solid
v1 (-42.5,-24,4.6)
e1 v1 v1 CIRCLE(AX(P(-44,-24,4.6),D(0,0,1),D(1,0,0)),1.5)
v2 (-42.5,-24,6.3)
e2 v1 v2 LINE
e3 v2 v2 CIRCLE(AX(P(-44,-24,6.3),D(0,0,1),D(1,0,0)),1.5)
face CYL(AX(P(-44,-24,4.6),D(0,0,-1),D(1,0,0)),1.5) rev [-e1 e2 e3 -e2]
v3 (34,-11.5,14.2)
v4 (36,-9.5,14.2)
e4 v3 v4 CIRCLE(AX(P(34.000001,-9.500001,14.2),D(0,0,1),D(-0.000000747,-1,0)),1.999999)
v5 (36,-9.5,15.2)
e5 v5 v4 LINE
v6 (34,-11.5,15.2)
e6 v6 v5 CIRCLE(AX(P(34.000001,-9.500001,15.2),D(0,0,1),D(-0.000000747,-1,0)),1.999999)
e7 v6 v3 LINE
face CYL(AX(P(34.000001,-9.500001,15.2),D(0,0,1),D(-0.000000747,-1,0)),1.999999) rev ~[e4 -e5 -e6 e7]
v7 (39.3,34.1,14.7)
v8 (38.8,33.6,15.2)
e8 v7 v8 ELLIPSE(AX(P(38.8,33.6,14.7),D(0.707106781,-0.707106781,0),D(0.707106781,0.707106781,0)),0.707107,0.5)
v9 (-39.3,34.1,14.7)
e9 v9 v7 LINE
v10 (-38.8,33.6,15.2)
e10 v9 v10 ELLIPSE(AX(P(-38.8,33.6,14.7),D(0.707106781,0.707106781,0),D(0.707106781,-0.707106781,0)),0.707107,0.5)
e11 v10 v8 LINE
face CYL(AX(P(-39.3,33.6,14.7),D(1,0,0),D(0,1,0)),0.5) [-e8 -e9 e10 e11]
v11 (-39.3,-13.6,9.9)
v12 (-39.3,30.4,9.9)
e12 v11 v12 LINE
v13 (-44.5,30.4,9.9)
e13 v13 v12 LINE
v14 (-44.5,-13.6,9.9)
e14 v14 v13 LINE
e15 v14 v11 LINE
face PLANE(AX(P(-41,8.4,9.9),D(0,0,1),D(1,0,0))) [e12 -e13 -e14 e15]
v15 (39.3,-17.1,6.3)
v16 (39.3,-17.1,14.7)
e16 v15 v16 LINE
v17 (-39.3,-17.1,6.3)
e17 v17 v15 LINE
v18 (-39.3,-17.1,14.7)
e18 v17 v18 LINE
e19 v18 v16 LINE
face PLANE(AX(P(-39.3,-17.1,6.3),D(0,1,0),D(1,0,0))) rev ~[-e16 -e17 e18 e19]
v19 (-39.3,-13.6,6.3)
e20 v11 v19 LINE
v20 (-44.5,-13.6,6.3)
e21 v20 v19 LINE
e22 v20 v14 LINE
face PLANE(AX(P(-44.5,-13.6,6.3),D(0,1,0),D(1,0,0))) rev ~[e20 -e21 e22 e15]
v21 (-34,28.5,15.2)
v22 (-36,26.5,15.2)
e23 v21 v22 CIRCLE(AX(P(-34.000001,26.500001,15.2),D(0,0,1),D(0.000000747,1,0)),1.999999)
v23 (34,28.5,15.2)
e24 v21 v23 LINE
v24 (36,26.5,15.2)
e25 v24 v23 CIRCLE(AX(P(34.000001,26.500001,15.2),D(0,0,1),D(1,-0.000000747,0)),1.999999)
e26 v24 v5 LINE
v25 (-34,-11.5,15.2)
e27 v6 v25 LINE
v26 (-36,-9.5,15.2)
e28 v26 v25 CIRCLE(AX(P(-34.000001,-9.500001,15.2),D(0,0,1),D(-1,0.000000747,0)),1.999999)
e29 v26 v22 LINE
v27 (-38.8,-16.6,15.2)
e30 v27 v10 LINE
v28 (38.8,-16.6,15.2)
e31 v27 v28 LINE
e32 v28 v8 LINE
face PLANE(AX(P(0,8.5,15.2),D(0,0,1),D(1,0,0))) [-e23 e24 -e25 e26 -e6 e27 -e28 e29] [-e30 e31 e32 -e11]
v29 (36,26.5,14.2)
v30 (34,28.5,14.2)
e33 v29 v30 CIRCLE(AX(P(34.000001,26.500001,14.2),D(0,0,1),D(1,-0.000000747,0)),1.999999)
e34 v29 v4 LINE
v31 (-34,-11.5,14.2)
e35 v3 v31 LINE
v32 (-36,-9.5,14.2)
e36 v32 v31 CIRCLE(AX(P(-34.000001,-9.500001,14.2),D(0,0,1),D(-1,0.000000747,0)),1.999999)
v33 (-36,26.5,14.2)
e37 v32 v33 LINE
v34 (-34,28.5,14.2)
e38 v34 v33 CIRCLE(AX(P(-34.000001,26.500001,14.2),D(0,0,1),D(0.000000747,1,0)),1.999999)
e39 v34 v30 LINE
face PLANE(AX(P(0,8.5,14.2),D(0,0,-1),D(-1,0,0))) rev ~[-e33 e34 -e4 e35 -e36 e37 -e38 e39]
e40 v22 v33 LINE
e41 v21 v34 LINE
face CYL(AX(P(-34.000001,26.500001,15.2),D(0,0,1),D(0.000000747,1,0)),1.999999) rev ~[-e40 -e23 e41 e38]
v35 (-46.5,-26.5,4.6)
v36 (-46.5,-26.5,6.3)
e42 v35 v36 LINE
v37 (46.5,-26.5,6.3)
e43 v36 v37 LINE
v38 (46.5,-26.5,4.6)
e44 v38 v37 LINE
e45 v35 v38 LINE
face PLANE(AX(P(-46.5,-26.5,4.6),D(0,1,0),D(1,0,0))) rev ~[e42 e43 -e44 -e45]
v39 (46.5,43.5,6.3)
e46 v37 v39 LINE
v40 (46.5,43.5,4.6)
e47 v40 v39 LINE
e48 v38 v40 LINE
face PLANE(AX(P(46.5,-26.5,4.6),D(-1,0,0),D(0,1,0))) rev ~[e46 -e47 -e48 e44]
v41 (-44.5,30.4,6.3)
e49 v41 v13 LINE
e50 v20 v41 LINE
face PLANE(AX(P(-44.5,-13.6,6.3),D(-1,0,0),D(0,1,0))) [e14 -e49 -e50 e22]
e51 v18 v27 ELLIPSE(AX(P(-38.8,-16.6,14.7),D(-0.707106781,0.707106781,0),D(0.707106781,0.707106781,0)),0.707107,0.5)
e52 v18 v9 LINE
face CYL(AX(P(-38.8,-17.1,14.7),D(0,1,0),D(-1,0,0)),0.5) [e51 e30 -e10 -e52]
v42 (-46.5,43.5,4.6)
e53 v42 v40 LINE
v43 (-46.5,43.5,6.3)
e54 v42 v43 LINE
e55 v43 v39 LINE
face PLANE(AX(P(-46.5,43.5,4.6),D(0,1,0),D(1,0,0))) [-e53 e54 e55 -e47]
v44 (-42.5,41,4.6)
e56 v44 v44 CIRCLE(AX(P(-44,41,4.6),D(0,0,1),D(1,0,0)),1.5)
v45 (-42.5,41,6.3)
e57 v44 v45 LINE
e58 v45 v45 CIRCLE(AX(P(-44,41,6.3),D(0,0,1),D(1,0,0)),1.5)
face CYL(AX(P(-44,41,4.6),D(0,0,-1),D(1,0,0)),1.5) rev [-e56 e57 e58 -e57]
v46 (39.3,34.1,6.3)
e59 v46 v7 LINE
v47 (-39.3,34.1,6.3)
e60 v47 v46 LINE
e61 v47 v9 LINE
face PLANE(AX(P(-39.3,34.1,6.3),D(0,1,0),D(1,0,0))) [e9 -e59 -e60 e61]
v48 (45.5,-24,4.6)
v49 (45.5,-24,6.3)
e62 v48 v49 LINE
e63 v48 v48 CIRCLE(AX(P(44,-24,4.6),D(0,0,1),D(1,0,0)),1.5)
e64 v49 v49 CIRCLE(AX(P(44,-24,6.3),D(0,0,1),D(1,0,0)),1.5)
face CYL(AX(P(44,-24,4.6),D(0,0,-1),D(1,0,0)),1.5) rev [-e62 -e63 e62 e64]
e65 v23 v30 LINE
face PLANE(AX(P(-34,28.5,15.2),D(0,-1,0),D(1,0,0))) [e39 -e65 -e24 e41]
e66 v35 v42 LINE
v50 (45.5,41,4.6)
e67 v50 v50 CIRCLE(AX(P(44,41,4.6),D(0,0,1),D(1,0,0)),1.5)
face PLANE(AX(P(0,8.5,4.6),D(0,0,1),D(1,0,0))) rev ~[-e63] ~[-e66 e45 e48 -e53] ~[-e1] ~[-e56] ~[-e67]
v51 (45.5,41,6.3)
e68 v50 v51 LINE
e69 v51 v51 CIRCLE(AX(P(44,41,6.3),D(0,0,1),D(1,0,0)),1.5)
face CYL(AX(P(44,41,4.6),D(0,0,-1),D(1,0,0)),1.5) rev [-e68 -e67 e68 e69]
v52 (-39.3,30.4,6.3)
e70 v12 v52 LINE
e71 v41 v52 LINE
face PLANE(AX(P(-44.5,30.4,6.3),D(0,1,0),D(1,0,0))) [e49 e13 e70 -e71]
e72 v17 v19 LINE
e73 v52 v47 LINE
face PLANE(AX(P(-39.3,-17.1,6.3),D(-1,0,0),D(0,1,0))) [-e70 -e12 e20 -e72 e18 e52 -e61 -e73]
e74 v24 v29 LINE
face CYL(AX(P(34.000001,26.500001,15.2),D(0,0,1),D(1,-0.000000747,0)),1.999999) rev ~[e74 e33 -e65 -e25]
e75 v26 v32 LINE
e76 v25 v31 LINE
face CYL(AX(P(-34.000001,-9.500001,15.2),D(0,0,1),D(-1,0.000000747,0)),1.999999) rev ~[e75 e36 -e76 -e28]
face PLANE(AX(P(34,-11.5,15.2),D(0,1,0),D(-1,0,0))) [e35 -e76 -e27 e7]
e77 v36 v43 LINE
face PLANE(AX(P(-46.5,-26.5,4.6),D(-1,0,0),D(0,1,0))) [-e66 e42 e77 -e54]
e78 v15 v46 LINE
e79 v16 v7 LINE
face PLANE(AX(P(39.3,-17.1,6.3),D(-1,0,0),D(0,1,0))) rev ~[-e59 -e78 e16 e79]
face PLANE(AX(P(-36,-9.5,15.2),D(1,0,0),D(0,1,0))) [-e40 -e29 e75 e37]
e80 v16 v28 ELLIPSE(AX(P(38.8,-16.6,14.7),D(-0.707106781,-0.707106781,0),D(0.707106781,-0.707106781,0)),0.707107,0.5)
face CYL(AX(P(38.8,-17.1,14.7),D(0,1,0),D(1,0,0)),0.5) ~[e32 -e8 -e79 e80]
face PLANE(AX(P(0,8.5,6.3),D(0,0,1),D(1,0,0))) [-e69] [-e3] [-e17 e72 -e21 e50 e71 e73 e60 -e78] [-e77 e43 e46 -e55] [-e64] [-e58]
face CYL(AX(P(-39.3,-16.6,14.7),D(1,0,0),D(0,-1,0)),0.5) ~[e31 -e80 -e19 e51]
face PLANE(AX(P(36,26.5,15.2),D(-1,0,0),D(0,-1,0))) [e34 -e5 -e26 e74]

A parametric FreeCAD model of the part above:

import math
import FreeCAD as App
import Part
import Sketcher

V = App.Vector
Q = App.Units.Quantity


def edges_at(feature, points):
    """Names of the edges that pass closest to the given points."""
    edges = feature.Shape.Edges
    near = lambda p: min(range(len(edges)), key=lambda i: edges[i].distToShape(Part.Vertex(*p))[0])
    return sorted({f"Edge{near(p) + 1}" for p in points})

doc = App.newDocument("Part")
body = doc.addObject("PartDesign::Body", "Body")

sketch1 = body.newObject("Sketcher::SketchObject", "Sketch")
sketch1.AttachmentSupport = (doc.getObject("XY_Plane"), [""])
sketch1.MapMode = "FlatFace"
sketch1.AttachmentOffset = App.Placement(V(0, 0, 4.6), App.Rotation())
sketch1.addGeometry(Part.LineSegment(V(-46.5, 43.5, 0), V(-46.5, -26.5, 0)), False)
sketch1.addGeometry(Part.LineSegment(V(-46.5, -26.5, 0), V(46.5, -26.5, 0)), False)
sketch1.addGeometry(Part.LineSegment(V(46.5, -26.5, 0), V(46.5, 43.5, 0)), False)
sketch1.addGeometry(Part.LineSegment(V(46.5, 43.5, 0), V(-46.5, 43.5, 0)), False)
sketch1.addGeometry(Part.Circle(V(-44, -24, 0), V(0, 0, 1), 1.5), False)
sketch1.addGeometry(Part.Circle(V(44, -24, 0), V(0, 0, 1), 1.5), False)
sketch1.addGeometry(Part.Circle(V(-44, 41, 0), V(0, 0, 1), 1.5), False)
sketch1.addGeometry(Part.Circle(V(44, 41, 0), V(0, 0, 1), 1.5), False)
sketch1.addConstraint(Sketcher.Constraint("Coincident", 0, 2, 1, 1))
sketch1.addConstraint(Sketcher.Constraint("Coincident", 1, 2, 2, 1))
sketch1.addConstraint(Sketcher.Constraint("Coincident", 2, 2, 3, 1))
sketch1.addConstraint(Sketcher.Constraint("Coincident", 3, 2, 0, 1))
sketch1.addConstraint(Sketcher.Constraint("Vertical", 0))
sketch1.addConstraint(Sketcher.Constraint("Horizontal", 1))
sketch1.addConstraint(Sketcher.Constraint("Vertical", 2))
sketch1.addConstraint(Sketcher.Constraint("Horizontal", 3))
sketch1.addConstraint(Sketcher.Constraint("Equal", 4, 5))
sketch1.addConstraint(Sketcher.Constraint("Equal", 5, 6))
sketch1.addConstraint(Sketcher.Constraint("Equal", 6, 7))
sketch1.addConstraint(Sketcher.Constraint("Symmetric", 4, 3, 5, 3, -2))
sketch1.addConstraint(Sketcher.Constraint("Symmetric", 6, 3, 7, 3, -2))
sketch1.addConstraint(Sketcher.Constraint("Vertical", 4, 3, 6, 3))
sketch1.addConstraint(Sketcher.Constraint("Diameter", 4, Q("3 mm")))
sketch1.addConstraint(Sketcher.Constraint("DistanceX", 1, 1, 1, 2, Q("93 mm")))
sketch1.addConstraint(Sketcher.Constraint("DistanceY", 0, 2, 0, 1, Q("70 mm")))
sketch1.addConstraint(Sketcher.Constraint("DistanceX", 4, 3, -1, 1, Q("44 mm")))
sketch1.addConstraint(Sketcher.Constraint("DistanceY", 4, 3, -1, 1, Q("24 mm")))
sketch1.addConstraint(Sketcher.Constraint("DistanceY", -1, 1, 6, 3, Q("41 mm")))
sketch1.addConstraint(Sketcher.Constraint("DistanceX", 0, 2, -1, 1, Q("46.5 mm")))
sketch1.addConstraint(Sketcher.Constraint("DistanceY", 0, 2, -1, 1, Q("26.5 mm")))
pad1 = body.newObject("PartDesign::Pad", "Pad")
pad1.Profile = sketch1
pad1.Length = 1.7

sketch2 = body.newObject("Sketcher::SketchObject", "Sketch001")
sketch2.AttachmentSupport = (doc.getObject("XY_Plane"), [""])
sketch2.MapMode = "FlatFace"
sketch2.AttachmentOffset = App.Placement(V(0, 0, 6.3), App.Rotation())
sketch2.addGeometry(Part.LineSegment(V(-39, 34, 0), V(-39, -17, 0)), False)
sketch2.addGeometry(Part.LineSegment(V(-39, -17, 0), V(39, -17, 0)), False)
sketch2.addGeometry(Part.LineSegment(V(39, -17, 0), V(39, 34, 0)), False)
sketch2.addGeometry(Part.LineSegment(V(39, 34, 0), V(-39, 34, 0)), False)
sketch2.addConstraint(Sketcher.Constraint("Coincident", 0, 2, 1, 1))
sketch2.addConstraint(Sketcher.Constraint("Coincident", 1, 2, 2, 1))
sketch2.addConstraint(Sketcher.Constraint("Coincident", 2, 2, 3, 1))
sketch2.addConstraint(Sketcher.Constraint("Coincident", 3, 2, 0, 1))
sketch2.addConstraint(Sketcher.Constraint("Vertical", 0))
sketch2.addConstraint(Sketcher.Constraint("Horizontal", 1))
sketch2.addConstraint(Sketcher.Constraint("Vertical", 2))
sketch2.addConstraint(Sketcher.Constraint("Horizontal", 3))
sketch2.addConstraint(Sketcher.Constraint("DistanceX", 1, 1, 1, 2, Q("78.6 mm")))
sketch2.addConstraint(Sketcher.Constraint("DistanceY", 0, 2, 0, 1, Q("51.2 mm")))
sketch2.addConstraint(Sketcher.Constraint("DistanceX", 0, 2, -1, 1, Q("39.3 mm")))
sketch2.addConstraint(Sketcher.Constraint("DistanceY", 0, 2, -1, 1, Q("17.1 mm")))
pad2 = body.newObject("PartDesign::Pad", "Pad001")
pad2.Profile = sketch2
pad2.Length = 8.9

sketch3 = body.newObject("Sketcher::SketchObject", "Sketch002")
sketch3.AttachmentSupport = (doc.getObject("XY_Plane"), [""])
sketch3.MapMode = "FlatFace"
sketch3.AttachmentOffset = App.Placement(V(0, 0, 6.3), App.Rotation())
sketch3.addGeometry(Part.LineSegment(V(-44, 30, 0), V(-44, -14, 0)), False)
sketch3.addGeometry(Part.LineSegment(V(-44, -14, 0), V(-38, -14, 0)), False)
sketch3.addGeometry(Part.LineSegment(V(-38, -14, 0), V(-38, 30, 0)), False)
sketch3.addGeometry(Part.LineSegment(V(-38, 30, 0), V(-44, 30, 0)), False)
sketch3.addConstraint(Sketcher.Constraint("Coincident", 0, 2, 1, 1))
sketch3.addConstraint(Sketcher.Constraint("Coincident", 1, 2, 2, 1))
sketch3.addConstraint(Sketcher.Constraint("Coincident", 2, 2, 3, 1))
sketch3.addConstraint(Sketcher.Constraint("Coincident", 3, 2, 0, 1))
sketch3.addConstraint(Sketcher.Constraint("Vertical", 0))
sketch3.addConstraint(Sketcher.Constraint("Horizontal", 1))
sketch3.addConstraint(Sketcher.Constraint("Vertical", 2))
sketch3.addConstraint(Sketcher.Constraint("Horizontal", 3))
sketch3.addConstraint(Sketcher.Constraint("DistanceX", 1, 1, 1, 2, Q("7 mm")))
sketch3.addConstraint(Sketcher.Constraint("DistanceY", 0, 2, 0, 1, Q("44 mm")))
sketch3.addConstraint(Sketcher.Constraint("DistanceX", 0, 2, -1, 1, Q("44.5 mm")))
sketch3.addConstraint(Sketcher.Constraint("DistanceY", 0, 2, -1, 1, Q("13.6 mm")))
pad3 = body.newObject("PartDesign::Pad", "Pad002")
pad3.Profile = sketch3
pad3.Length = 3.6
doc.recompute()

fillet = body.newObject("PartDesign::Fillet", "Fillet")
fillet.Base = (pad3, edges_at(pad3, [
    (0, -17.1, 15.2),
    (39.3, 8.5, 15.2),
    (0, 34.1, 15.2),
    (-39.3, 8.5, 15.2),
]))
fillet.Radius = 0.5

sketch4 = body.newObject("Sketcher::SketchObject", "Sketch003")
sketch4.AttachmentSupport = (doc.getObject("XY_Plane"), [""])
sketch4.MapMode = "FlatFace"
sketch4.AttachmentOffset = App.Placement(V(0, 0, 15.2), App.Rotation())
sketch4.addGeometry(Part.LineSegment(V(34, 28.5, 0), V(-34, 28.5, 0)), False)
sketch4.addGeometry(Part.ArcOfCircle(Part.Circle(V(-34, 26.5, 0), V(0, 0, 1), 2), math.radians(90), math.radians(180)), False)
sketch4.addGeometry(Part.LineSegment(V(-36, 26.5, 0), V(-36, -9.5, 0)), False)
sketch4.addGeometry(Part.ArcOfCircle(Part.Circle(V(-34, -9.5, 0), V(0, 0, 1), 2), math.radians(180), math.radians(270)), False)
sketch4.addGeometry(Part.LineSegment(V(-34, -11.5, 0), V(34, -11.5, 0)), False)
sketch4.addGeometry(Part.ArcOfCircle(Part.Circle(V(34, -9.5, 0), V(0, 0, 1), 2), math.radians(-90), math.radians(0)), False)
sketch4.addGeometry(Part.LineSegment(V(36, -9.5, 0), V(36, 26.5, 0)), False)
sketch4.addGeometry(Part.ArcOfCircle(Part.Circle(V(34, 26.5, 0), V(0, 0, 1), 2), math.radians(0), math.radians(90)), False)
sketch4.addConstraint(Sketcher.Constraint("Tangent", 0, 2, 1, 1))
sketch4.addConstraint(Sketcher.Constraint("Tangent", 1, 2, 2, 1))
sketch4.addConstraint(Sketcher.Constraint("Tangent", 2, 2, 3, 1))
sketch4.addConstraint(Sketcher.Constraint("Tangent", 3, 2, 4, 1))
sketch4.addConstraint(Sketcher.Constraint("Tangent", 4, 2, 5, 1))
sketch4.addConstraint(Sketcher.Constraint("Tangent", 5, 2, 6, 1))
sketch4.addConstraint(Sketcher.Constraint("Tangent", 6, 2, 7, 1))
sketch4.addConstraint(Sketcher.Constraint("Tangent", 7, 2, 0, 1))
sketch4.addConstraint(Sketcher.Constraint("Horizontal", 0))
sketch4.addConstraint(Sketcher.Constraint("Vertical", 2))
sketch4.addConstraint(Sketcher.Constraint("Horizontal", 4))
sketch4.addConstraint(Sketcher.Constraint("Vertical", 6))
sketch4.addConstraint(Sketcher.Constraint("Equal", 1, 3))
sketch4.addConstraint(Sketcher.Constraint("Equal", 3, 5))
sketch4.addConstraint(Sketcher.Constraint("Equal", 5, 7))
sketch4.addConstraint(Sketcher.Constraint("Radius", 1, Q("1.999999 mm")))
sketch4.addConstraint(Sketcher.Constraint("DistanceX", 0, 2, 0, 1, Q("68 mm")))
sketch4.addConstraint(Sketcher.Constraint("DistanceY", 2, 2, 2, 1, Q("36 mm")))
sketch4.addConstraint(Sketcher.Constraint("DistanceX", 1, 3, -1, 1, Q("34.000001 mm")))
sketch4.addConstraint(Sketcher.Constraint("DistanceY", -1, 1, 1, 3, Q("26.500001 mm")))
pocket1 = body.newObject("PartDesign::Pocket", "Pocket")
pocket1.Profile = sketch4
pocket1.Length = 1

doc.recompute()
